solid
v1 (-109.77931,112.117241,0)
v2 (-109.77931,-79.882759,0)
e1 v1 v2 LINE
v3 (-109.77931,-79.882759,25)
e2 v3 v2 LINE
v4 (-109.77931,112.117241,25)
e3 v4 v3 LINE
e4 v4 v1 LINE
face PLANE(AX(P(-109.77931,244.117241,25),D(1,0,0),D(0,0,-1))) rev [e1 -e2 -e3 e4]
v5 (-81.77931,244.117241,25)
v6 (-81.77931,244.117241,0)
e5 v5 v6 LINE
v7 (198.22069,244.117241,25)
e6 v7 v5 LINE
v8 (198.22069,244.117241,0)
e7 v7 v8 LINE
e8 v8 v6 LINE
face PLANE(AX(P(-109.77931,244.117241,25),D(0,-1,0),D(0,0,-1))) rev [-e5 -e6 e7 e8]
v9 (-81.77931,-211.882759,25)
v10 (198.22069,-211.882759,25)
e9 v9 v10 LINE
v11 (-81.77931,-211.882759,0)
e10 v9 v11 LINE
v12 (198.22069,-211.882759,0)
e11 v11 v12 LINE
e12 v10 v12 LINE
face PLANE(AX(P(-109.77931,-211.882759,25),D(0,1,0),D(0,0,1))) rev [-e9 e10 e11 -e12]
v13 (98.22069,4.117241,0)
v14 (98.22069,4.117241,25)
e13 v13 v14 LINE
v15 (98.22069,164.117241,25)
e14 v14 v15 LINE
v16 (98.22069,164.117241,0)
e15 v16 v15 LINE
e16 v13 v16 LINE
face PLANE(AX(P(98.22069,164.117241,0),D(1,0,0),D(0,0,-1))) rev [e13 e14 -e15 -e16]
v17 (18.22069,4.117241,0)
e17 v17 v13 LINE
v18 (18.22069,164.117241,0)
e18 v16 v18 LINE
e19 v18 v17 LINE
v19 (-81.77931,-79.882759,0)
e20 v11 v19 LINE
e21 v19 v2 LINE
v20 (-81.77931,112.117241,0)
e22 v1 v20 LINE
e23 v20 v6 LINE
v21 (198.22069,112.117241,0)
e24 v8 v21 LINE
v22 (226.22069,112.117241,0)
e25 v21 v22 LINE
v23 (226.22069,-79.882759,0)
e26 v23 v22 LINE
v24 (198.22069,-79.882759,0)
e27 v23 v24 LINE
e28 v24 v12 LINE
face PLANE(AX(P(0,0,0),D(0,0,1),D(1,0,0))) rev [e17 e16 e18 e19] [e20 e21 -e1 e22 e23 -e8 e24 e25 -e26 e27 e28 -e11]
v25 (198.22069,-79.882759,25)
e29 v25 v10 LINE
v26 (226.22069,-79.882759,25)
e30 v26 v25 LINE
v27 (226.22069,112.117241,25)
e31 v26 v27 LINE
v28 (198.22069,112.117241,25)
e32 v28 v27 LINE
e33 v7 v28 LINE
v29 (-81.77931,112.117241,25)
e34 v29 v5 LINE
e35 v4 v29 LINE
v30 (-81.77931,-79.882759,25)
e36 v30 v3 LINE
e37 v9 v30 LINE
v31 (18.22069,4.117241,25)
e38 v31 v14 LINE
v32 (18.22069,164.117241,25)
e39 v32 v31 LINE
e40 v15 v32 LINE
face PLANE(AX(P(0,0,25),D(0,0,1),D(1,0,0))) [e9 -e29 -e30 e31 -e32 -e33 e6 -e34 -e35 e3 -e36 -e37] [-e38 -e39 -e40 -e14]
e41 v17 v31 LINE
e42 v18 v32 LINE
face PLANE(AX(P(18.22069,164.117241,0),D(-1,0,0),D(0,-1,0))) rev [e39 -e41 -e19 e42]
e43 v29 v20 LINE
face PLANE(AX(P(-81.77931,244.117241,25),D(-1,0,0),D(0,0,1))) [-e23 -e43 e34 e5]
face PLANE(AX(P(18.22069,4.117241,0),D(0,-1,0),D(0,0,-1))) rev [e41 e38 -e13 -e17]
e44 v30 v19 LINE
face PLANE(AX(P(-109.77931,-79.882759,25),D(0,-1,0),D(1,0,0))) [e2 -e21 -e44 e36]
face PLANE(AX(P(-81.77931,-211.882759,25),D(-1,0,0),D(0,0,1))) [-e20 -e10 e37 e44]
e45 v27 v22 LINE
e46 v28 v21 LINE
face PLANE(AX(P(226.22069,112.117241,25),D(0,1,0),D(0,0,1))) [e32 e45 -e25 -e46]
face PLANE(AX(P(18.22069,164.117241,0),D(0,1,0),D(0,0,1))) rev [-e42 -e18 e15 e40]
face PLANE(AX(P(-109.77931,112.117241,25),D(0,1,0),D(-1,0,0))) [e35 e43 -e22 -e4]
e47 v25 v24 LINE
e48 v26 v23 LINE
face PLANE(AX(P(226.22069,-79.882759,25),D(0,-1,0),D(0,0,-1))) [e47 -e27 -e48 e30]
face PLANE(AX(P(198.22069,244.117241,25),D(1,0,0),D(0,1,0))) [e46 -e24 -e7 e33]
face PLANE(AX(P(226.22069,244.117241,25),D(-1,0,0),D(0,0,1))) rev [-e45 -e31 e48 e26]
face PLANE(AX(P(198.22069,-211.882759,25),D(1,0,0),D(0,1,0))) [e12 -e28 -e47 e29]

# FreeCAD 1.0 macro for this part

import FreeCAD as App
import Part
import Sketcher

V = App.Vector
Q = App.Units.Quantity


def add_polygon(sketch, points):
    """Adds a closed chain of lines whose ends are joined by coincident constraints."""
    first, n = sketch.GeometryCount, len(points)
    for a, b in zip(points, points[1:] + points[:1]):
        sketch.addGeometry(Part.LineSegment(App.Vector(*a, 0), App.Vector(*b, 0)), False)
    for i in range(n):
        sketch.addConstraint(Sketcher.Constraint("Coincident", first + i, 2, first + (i + 1) % n, 1))

doc = App.newDocument("Part")
params = doc.addObject("Spreadsheet::Sheet", "Params")
for row, (alias, value) in enumerate([
    ("sketch1_width", "336 mm"),
    ("sketch1_height", "456 mm"),
    ("pad1_length", "25 mm"),
    ("sketch2_width", "28 mm"),
    ("sketch2_height", "132 mm"),
    ("pocket1_length", "25 mm"),
    ("sketch3_width", "80 mm"),
    ("sketch3_height", "160 mm"),
    ("pocket2_length", "25 mm"),
], start=1):
    params.set(f"A{row}", alias)
    params.set(f"B{row}", "=" + value)
    params.setAlias(f"B{row}", alias)

body = doc.addObject("PartDesign::Body", "Body")

sketch1 = doc.addObject("Sketcher::SketchObject", "Sketch")
body.addObject(sketch1)
sketch1.AttachmentSupport = (doc.XY_Plane, [""])
sketch1.MapMode = "FlatFace"
add_polygon(sketch1, [(-110, 244), (-110, -212), (226, -212), (226, 244)])
sketch1.addConstraint(Sketcher.Constraint("Vertical", 0))
sketch1.addConstraint(Sketcher.Constraint("Horizontal", 1))
sketch1.addConstraint(Sketcher.Constraint("Vertical", 2))
sketch1.addConstraint(Sketcher.Constraint("Horizontal", 3))
sketch1.addConstraint(Sketcher.Constraint("DistanceX", 1, 1, 1, 2, Q("336 mm")))
sketch1.addConstraint(Sketcher.Constraint("DistanceY", 0, 2, 0, 1, Q("456 mm")))
sketch1.addConstraint(Sketcher.Constraint("DistanceX", 0, 2, -1, 1, Q("109.77931 mm")))
sketch1.addConstraint(Sketcher.Constraint("DistanceY", 0, 2, -1, 1, Q("211.882759 mm")))
sketch1.setExpression("Constraints[8]", "Params.sketch1_width")
sketch1.setExpression("Constraints[9]", "Params.sketch1_height")
pad1 = doc.addObject("PartDesign::Pad", "Pad")
body.addObject(pad1)
pad1.Profile = sketch1
pad1.setExpression("Length", "Params.pad1_length")

sketch2 = doc.addObject("Sketcher::SketchObject", "Sketch001")
body.addObject(sketch2)
sketch2.AttachmentSupport = (doc.XY_Plane, [""])
sketch2.MapMode = "FlatFace"
add_polygon(sketch2, [(-110, 244), (-110, 112), (-82, 112), (-82, 244)])
add_polygon(sketch2, [(198, 244), (198, 112), (226, 112), (226, 244)])
add_polygon(sketch2, [(198, -80), (198, -212), (226, -212), (226, -80)])
add_polygon(sketch2, [(-110, -80), (-110, -212), (-82, -212), (-82, -80)])
sketch2.addConstraint(Sketcher.Constraint("Vertical", 0))
sketch2.addConstraint(Sketcher.Constraint("Horizontal", 1))
sketch2.addConstraint(Sketcher.Constraint("Vertical", 2))
sketch2.addConstraint(Sketcher.Constraint("Horizontal", 3))
sketch2.addConstraint(Sketcher.Constraint("Vertical", 4))
sketch2.addConstraint(Sketcher.Constraint("Horizontal", 5))
sketch2.addConstraint(Sketcher.Constraint("Vertical", 6))
sketch2.addConstraint(Sketcher.Constraint("Horizontal", 7))
sketch2.addConstraint(Sketcher.Constraint("Vertical", 8))
sketch2.addConstraint(Sketcher.Constraint("Horizontal", 9))
sketch2.addConstraint(Sketcher.Constraint("Vertical", 10))
sketch2.addConstraint(Sketcher.Constraint("Horizontal", 11))
sketch2.addConstraint(Sketcher.Constraint("Vertical", 12))
sketch2.addConstraint(Sketcher.Constraint("Horizontal", 13))
sketch2.addConstraint(Sketcher.Constraint("Vertical", 14))
sketch2.addConstraint(Sketcher.Constraint("Horizontal", 15))
sketch2.addConstraint(Sketcher.Constraint("Horizontal", 1, 2, 4, 2))
sketch2.addConstraint(Sketcher.Constraint("Horizontal", 3, 2, 6, 2))
sketch2.addConstraint(Sketcher.Constraint("Horizontal", 9, 2, 12, 2))
sketch2.addConstraint(Sketcher.Constraint("Horizontal", 11, 2, 14, 2))
sketch2.addConstraint(Sketcher.Constraint("Vertical", 7, 2, 8, 2))
sketch2.addConstraint(Sketcher.Constraint("Vertical", 6, 2, 9, 2))
sketch2.addConstraint(Sketcher.Constraint("Vertical", 3, 2, 12, 2))
sketch2.addConstraint(Sketcher.Constraint("Vertical", 2, 2, 13, 2))
sketch2.addConstraint(Sketcher.Constraint("Equal", 3, 5))
sketch2.addConstraint(Sketcher.Constraint("Equal", 6, 8))
sketch2.addConstraint(Sketcher.Constraint("DistanceX", 1, 1, 1, 2, Q("28 mm")))
sketch2.addConstraint(Sketcher.Constraint("DistanceY", 0, 2, 0, 1, Q("132 mm")))
sketch2.addConstraint(Sketcher.Constraint("DistanceX", 1, 2, 4, 2, Q("280 mm")))
sketch2.addConstraint(Sketcher.Constraint("DistanceY", 8, 2, 4, 2, Q("324 mm")))
sketch2.addConstraint(Sketcher.Constraint("DistanceX", 0, 2, -1, 1, Q("109.77931 mm")))
sketch2.addConstraint(Sketcher.Constraint("DistanceY", -1, 1, 0, 2, Q("112.117241 mm")))
sketch2.setExpression("Constraints[42]", "Params.sketch2_width")
sketch2.setExpression("Constraints[43]", "Params.sketch2_height")
pocket1 = doc.addObject("PartDesign::Pocket", "Pocket")
body.addObject(pocket1)
pocket1.Profile = sketch2
pocket1.setExpression("Length", "Params.pocket1_length")
pocket1.Reversed = True

sketch3 = doc.addObject("Sketcher::SketchObject", "Sketch002")
body.addObject(sketch3)
sketch3.AttachmentSupport = (doc.XY_Plane, [""])
sketch3.MapMode = "FlatFace"
sketch3.AttachmentOffset = App.Placement(V(0, 0, 25), App.Rotation())
add_polygon(sketch3, [(18, 164), (18, 4), (98, 4), (98, 164)])
sketch3.addConstraint(Sketcher.Constraint("Vertical", 0))
sketch3.addConstraint(Sketcher.Constraint("Horizontal", 1))
sketch3.addConstraint(Sketcher.Constraint("Vertical", 2))
sketch3.addConstraint(Sketcher.Constraint("Horizontal", 3))
sketch3.addConstraint(Sketcher.Constraint("DistanceX", 1, 1, 1, 2, Q("80 mm")))
sketch3.addConstraint(Sketcher.Constraint("DistanceY", 0, 2, 0, 1, Q("160 mm")))
sketch3.addConstraint(Sketcher.Constraint("DistanceX", -1, 1, 0, 2, Q("18.22069 mm")))
sketch3.addConstraint(Sketcher.Constraint("DistanceY", -1, 1, 0, 2, Q("4.117241 mm")))
sketch3.setExpression("Constraints[8]", "Params.sketch3_width")
sketch3.setExpression("Constraints[9]", "Params.sketch3_height")
pocket2 = doc.addObject("PartDesign::Pocket", "Pocket001")
body.addObject(pocket2)
pocket2.Profile = sketch3
pocket2.setExpression("Length", "Params.pocket2_length")

doc.recompute()
